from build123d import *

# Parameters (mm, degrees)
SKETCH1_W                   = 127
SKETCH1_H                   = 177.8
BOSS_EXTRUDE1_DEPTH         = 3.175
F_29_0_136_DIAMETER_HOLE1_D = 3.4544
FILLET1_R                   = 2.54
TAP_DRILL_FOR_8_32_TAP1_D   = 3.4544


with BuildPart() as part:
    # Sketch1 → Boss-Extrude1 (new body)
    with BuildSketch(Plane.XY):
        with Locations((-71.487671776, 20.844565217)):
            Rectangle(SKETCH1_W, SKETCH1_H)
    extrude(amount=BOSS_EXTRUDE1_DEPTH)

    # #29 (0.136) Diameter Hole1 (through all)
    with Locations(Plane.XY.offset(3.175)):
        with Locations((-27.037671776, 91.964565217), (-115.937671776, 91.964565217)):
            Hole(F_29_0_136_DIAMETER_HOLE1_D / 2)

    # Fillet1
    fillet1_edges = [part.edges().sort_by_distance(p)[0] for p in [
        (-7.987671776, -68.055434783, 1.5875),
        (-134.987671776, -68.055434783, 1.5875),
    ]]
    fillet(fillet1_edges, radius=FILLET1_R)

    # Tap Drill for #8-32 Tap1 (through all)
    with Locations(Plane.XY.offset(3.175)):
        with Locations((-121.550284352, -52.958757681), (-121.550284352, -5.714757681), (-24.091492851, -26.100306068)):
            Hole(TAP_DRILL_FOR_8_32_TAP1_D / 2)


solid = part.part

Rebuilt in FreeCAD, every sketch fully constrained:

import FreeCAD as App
import Part
import Sketcher

V = App.Vector
Q = App.Units.Quantity


def edges_at(feature, points):
    """Names of the edges that pass closest to the given points."""
    edges = feature.Shape.Edges
    near = lambda p: min(range(len(edges)), key=lambda i: edges[i].distToShape(Part.Vertex(*p))[0])
    return sorted({f"Edge{near(p) + 1}" for p in points})

doc = App.newDocument("Part")
body = doc.addObject("PartDesign::Body", "Body")

sketch1 = body.newObject("Sketcher::SketchObject", "Sketch")
sketch1.AttachmentSupport = (doc.getObject("XY_Plane"), [""])
sketch1.MapMode = "FlatFace"
sketch1.addGeometry([
    Part.LineSegment(V(-135, 110, 0), V(-135, -68, 0)),
    Part.LineSegment(V(-135, -68, 0), V(-8, -68, 0)),
    Part.LineSegment(V(-8, -68, 0), V(-8, 110, 0)),
    Part.LineSegment(V(-8, 110, 0), V(-135, 110, 0)),
], False)
sketch1.addConstraint([
    Sketcher.Constraint("Coincident", 0, 2, 1, 1),
    Sketcher.Constraint("Coincident", 1, 2, 2, 1),
    Sketcher.Constraint("Coincident", 2, 2, 3, 1),
    Sketcher.Constraint("Coincident", 3, 2, 0, 1),
    Sketcher.Constraint("Vertical", 0),
    Sketcher.Constraint("Horizontal", 1),
    Sketcher.Constraint("Vertical", 2),
    Sketcher.Constraint("Horizontal", 3),
    Sketcher.Constraint("DistanceX", 1, 1, 1, 2, Q("5 in")),
    Sketcher.Constraint("DistanceY", 0, 2, 0, 1, Q("7 in")),
    Sketcher.Constraint("DistanceX", 0, 2, -1, 1, 134.987672),
    Sketcher.Constraint("DistanceY", 0, 2, -1, 1, 68.055435),
])
pad1 = body.newObject("PartDesign::Pad", "Pad")
pad1.Profile = sketch1
pad1.Length = Q("0.125 in")

sketch2 = body.newObject("Sketcher::SketchObject", "Sketch001")
sketch2.AttachmentSupport = (doc.getObject("XY_Plane"), [""])
sketch2.MapMode = "FlatFace"
sketch2.AttachmentOffset = App.Placement(V(0, 0, 0.125 * 25.4), App.Rotation())
sketch2.addGeometry([
    Part.Circle(V(-27, 92, 0), V(0, 0, 1), 1.7),
    Part.Circle(V(-115.9, 92, 0), V(0, 0, 1), 1.7),
], False)
sketch2.addConstraint([
    Sketcher.Constraint("Equal", 0, 1),
    Sketcher.Constraint("Horizontal", 0, 3, 1, 3),
    Sketcher.Constraint("Diameter", 0, Q("0.136 in")),
    Sketcher.Constraint("DistanceX", 1, 3, 0, 3, Q("3.5 in")),
    Sketcher.Constraint("DistanceX", 0, 3, -1, 1, 27.037672),
    Sketcher.Constraint("DistanceY", -1, 1, 0, 3, 91.964565),
])
doc.recompute()
hole = body.newObject("PartDesign::Hole", "Hole")
hole.Profile = sketch2
hole.ThreadType = "None"
hole.Diameter = Q("0.136 in")
hole.DepthType = "ThroughAll"
doc.recompute()

fillet = body.newObject("PartDesign::Fillet", "Fillet")
fillet.Base = (hole, edges_at(hole, [(-7.988, -68.055, 1.587), (-134.988, -68.055, 1.587)]))
fillet.Radius = Q("0.1 in")

sketch3 = body.newObject("Sketcher::SketchObject", "Sketch002")
sketch3.AttachmentSupport = (doc.getObject("XY_Plane"), [""])
sketch3.MapMode = "FlatFace"
sketch3.AttachmentOffset = App.Placement(V(0, 0, 0.125 * 25.4), App.Rotation())
sketch3.addGeometry([
    Part.Circle(V(-121.6, -53, 0), V(0, 0, 1), 1.7),
    Part.Circle(V(-121.6, -5.7, 0), V(0, 0, 1), 1.7),
    Part.Circle(V(-24.1, -26.1, 0), V(0, 0, 1), 1.7),
], False)
sketch3.addConstraint([
    Sketcher.Constraint("Equal", 0, 1),
    Sketcher.Constraint("Equal", 1, 2),
    Sketcher.Constraint("Vertical", 0, 3, 1, 3),
    Sketcher.Constraint("Diameter", 0, Q("0.136 in")),
    Sketcher.Constraint("DistanceY", 0, 3, 1, 3, Q("1.86 in")),
    Sketcher.Constraint("DistanceX", 1, 3, 2, 3, 97.458792),
    Sketcher.Constraint("DistanceY", 2, 3, 1, 3, 20.385548),
    Sketcher.Constraint("DistanceX", 0, 3, -1, 1, 121.550284),
    Sketcher.Constraint("DistanceY", 0, 3, -1, 1, 52.958758),
])
doc.recompute()
hole2 = body.newObject("PartDesign::Hole", "Hole001")
hole2.Profile = sketch3
hole2.ThreadType = "None"
hole2.Diameter = Q("0.136 in")
hole2.DepthType = "ThroughAll"

doc.recompute()
